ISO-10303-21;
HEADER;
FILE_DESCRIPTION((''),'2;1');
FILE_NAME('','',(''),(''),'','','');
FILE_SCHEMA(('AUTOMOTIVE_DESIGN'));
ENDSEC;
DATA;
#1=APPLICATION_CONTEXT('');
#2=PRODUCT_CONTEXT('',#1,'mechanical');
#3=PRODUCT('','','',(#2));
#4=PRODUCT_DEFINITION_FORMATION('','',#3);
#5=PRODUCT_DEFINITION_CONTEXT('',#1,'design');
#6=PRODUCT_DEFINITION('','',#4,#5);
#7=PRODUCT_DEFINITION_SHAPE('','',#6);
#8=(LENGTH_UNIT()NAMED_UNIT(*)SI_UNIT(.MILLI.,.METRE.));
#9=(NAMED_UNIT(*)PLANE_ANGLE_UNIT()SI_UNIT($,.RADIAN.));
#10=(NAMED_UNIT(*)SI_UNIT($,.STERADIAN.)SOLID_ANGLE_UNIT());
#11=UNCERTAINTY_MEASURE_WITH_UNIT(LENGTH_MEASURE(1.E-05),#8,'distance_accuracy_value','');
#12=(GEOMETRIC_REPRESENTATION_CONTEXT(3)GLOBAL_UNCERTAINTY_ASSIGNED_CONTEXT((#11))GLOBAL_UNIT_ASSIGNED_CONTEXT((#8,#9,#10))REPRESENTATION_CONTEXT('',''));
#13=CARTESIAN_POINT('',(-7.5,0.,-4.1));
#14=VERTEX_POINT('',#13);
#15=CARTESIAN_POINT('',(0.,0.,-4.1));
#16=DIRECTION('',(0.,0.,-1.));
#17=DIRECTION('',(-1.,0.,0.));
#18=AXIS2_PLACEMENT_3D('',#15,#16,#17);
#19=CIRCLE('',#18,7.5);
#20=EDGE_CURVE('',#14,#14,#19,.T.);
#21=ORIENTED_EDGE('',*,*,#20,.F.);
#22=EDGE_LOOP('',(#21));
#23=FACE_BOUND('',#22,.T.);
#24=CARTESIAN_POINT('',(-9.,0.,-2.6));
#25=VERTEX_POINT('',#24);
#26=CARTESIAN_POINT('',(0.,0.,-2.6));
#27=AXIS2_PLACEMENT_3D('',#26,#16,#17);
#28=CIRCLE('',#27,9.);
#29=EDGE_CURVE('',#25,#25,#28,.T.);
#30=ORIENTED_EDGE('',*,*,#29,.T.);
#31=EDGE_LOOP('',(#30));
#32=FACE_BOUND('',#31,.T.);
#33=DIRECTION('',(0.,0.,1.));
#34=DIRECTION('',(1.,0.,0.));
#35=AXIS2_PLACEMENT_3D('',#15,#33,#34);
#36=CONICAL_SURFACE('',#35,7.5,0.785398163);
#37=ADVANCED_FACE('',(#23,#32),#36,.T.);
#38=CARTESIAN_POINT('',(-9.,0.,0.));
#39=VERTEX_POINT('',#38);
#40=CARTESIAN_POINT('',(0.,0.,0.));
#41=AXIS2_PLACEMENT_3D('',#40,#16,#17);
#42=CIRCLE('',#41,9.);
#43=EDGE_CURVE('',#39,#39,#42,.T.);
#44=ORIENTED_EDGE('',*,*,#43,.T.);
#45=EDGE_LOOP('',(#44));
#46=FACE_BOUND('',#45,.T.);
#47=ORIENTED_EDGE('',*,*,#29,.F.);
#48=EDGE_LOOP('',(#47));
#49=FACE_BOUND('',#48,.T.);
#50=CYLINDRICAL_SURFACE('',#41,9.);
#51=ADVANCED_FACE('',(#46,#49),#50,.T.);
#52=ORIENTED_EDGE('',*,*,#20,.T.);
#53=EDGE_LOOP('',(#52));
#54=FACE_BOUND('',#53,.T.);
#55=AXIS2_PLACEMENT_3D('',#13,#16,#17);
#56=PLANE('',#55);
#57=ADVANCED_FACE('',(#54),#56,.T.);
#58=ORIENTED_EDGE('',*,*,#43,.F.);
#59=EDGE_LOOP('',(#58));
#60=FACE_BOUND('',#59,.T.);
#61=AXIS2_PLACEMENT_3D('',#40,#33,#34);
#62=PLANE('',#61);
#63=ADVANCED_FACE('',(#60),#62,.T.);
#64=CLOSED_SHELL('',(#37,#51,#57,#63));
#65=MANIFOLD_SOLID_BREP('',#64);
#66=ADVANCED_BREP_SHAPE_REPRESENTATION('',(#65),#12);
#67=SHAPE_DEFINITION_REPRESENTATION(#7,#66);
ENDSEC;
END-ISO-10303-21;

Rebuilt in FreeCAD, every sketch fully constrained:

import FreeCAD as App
import Part
import Sketcher
Q = App.Units.Quantity

doc = App.newDocument("Part")
body = doc.addObject("PartDesign::Body", "Body")

# Sketch on XZ plane
sketch1 = body.newObject("Sketcher::SketchObject", "Sketch")
sketch1.AttachmentSupport = (doc.getObject("XZ_Plane"), [""])
sketch1.MapMode = "FlatFace"
sketch1.addGeometry([
    Part.LineSegment(App.Vector(-9, 0, 0), App.Vector(0, 0, 0)),  # 0
    Part.LineSegment(App.Vector(0, 0, 0), App.Vector(0, -4.1, 0)),  # 1
    Part.LineSegment(App.Vector(0, -4.1, 0), App.Vector(-7.5, -4.1, 0)),  # 2
    Part.LineSegment(App.Vector(-7.5, -4.1, 0), App.Vector(-9, -2.6, 0)),  # 3
    Part.LineSegment(App.Vector(-9, -2.6, 0), App.Vector(-9, 0, 0)),  # 4
], False)
sketch1.addConstraint([
    Sketcher.Constraint("Coincident", 0, 2, 1, 1),
    Sketcher.Constraint("Coincident", 1, 2, 2, 1),
    Sketcher.Constraint("Coincident", 2, 2, 3, 1),
    Sketcher.Constraint("Coincident", 3, 2, 4, 1),
    Sketcher.Constraint("Coincident", 4, 2, 0, 1),
    Sketcher.Constraint("Horizontal", 0),
    Sketcher.Constraint("Vertical", 1),
    Sketcher.Constraint("Horizontal", 2),
    Sketcher.Constraint("Vertical", 4),
    Sketcher.Constraint("Coincident", 0, 2, -1, 1),
    Sketcher.Constraint("DistanceX", 0, 1, 0, 2, 9.0),
    Sketcher.Constraint("Angle", 3, Q("135 deg")),
    Sketcher.Constraint("DistanceX", 2, 2, 2, 1, 7.5),
    Sketcher.Constraint("DistanceY", 1, 2, 1, 1, 4.1),
])
revolution = body.newObject("PartDesign::Revolution", "Revolution")
revolution.Profile = sketch1
revolution.ReferenceAxis = (sketch1, ["V_Axis"])
revolution.Angle = 360

doc.recompute()
